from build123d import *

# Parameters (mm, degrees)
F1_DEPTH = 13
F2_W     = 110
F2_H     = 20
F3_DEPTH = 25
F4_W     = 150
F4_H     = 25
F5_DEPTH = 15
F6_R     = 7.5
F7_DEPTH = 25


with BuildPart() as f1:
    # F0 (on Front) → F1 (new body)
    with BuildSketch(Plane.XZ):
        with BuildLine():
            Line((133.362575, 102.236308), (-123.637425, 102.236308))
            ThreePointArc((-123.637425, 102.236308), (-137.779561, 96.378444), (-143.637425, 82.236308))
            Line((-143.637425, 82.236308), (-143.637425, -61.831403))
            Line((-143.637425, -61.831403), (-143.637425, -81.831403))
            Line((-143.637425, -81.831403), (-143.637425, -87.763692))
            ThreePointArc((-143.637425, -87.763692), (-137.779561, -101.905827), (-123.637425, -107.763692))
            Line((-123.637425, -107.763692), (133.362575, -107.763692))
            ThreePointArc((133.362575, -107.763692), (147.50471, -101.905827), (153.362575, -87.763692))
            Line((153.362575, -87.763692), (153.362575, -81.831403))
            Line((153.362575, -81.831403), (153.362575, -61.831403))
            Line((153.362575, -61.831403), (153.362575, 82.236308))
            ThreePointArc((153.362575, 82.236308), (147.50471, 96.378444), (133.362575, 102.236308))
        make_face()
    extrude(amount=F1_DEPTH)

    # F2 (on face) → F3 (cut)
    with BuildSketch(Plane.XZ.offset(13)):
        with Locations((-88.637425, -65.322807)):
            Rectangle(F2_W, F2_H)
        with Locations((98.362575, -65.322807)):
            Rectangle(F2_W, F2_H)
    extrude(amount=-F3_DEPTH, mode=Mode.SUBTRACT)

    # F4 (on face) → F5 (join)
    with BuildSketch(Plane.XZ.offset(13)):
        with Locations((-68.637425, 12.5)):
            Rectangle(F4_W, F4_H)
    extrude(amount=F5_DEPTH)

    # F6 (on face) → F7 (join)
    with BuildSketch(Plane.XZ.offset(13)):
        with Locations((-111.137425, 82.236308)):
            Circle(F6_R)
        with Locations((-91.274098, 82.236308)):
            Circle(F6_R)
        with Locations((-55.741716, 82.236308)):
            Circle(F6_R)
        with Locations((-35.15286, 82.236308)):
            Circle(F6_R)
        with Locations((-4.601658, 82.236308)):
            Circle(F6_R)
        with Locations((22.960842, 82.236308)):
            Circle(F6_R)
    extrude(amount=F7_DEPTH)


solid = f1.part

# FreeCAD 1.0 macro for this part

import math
import FreeCAD as App
import Part
import Sketcher

V = App.Vector


def add_polygon(sketch, points):
    """Adds a closed chain of lines whose ends are joined by coincident constraints."""
    first, n = sketch.GeometryCount, len(points)
    for a, b in zip(points, points[1:] + points[:1]):
        sketch.addGeometry(Part.LineSegment(App.Vector(*a, 0), App.Vector(*b, 0)), False)
    for i in range(n):
        sketch.addConstraint(Sketcher.Constraint("Coincident", first + i, 2, first + (i + 1) % n, 1))

doc = App.newDocument("Part")
params = doc.addObject("Spreadsheet::Sheet", "Params")
for row, (alias, value) in enumerate([
    ("sketch1_radius", "19.999999 mm"),
    ("sketch1_width", "257 mm"),
    ("sketch1_height", "170 mm"),
    ("pad1_length", "13 mm"),
    ("sketch2_width", "110 mm"),
    ("sketch2_height", "20 mm"),
    ("pocket1_length", "25 mm"),
    ("sketch3_width", "150 mm"),
    ("sketch3_height", "25 mm"),
    ("pad2_length", "15 mm"),
    ("sketch4_diameter", "15 mm"),
    ("pad3_length", "25 mm"),
], start=1):
    params.set(f"A{row}", alias)
    params.set(f"B{row}", "=" + value)
    params.setAlias(f"B{row}", alias)

body = doc.addObject("PartDesign::Body", "Body")

# Sketch on XZ plane
sketch1 = body.newObject("Sketcher::SketchObject", "Sketch")
sketch1.AttachmentSupport = (doc.getObject("XZ_Plane"), [""])
sketch1.MapMode = "FlatFace"
sketch1.addGeometry([
    Part.LineSegment(V(133, 102, 0), V(-124, 102, 0)),  # 0
    Part.ArcOfCircle(Part.Circle(V(-124, 82, 0), V(0, 0, 1), 20), math.radians(90), math.radians(180)),  # 1
    Part.LineSegment(V(-144, 82, 0), V(-144, -88, 0)),  # 2
    Part.ArcOfCircle(Part.Circle(V(-124, -88, 0), V(0, 0, 1), 20), math.radians(-180), math.radians(-90)),  # 3
    Part.LineSegment(V(-124, -108, 0), V(133, -108, 0)),  # 4
    Part.ArcOfCircle(Part.Circle(V(133, -88, 0), V(0, 0, 1), 20), math.radians(-90), math.radians(0)),  # 5
    Part.LineSegment(V(153, -88, 0), V(153, 82, 0)),  # 6
    Part.ArcOfCircle(Part.Circle(V(133, 82, 0), V(0, 0, 1), 20), math.radians(0), math.radians(90)),  # 7
], False)
sketch1.addConstraint([
    Sketcher.Constraint("Tangent", 0, 2, 1, 1),
    Sketcher.Constraint("Tangent", 1, 2, 2, 1),
    Sketcher.Constraint("Tangent", 2, 2, 3, 1),
    Sketcher.Constraint("Tangent", 3, 2, 4, 1),
    Sketcher.Constraint("Tangent", 4, 2, 5, 1),
    Sketcher.Constraint("Tangent", 5, 2, 6, 1),
    Sketcher.Constraint("Tangent", 6, 2, 7, 1),
    Sketcher.Constraint("Tangent", 7, 2, 0, 1),
    Sketcher.Constraint("Horizontal", 0),
    Sketcher.Constraint("Vertical", 2),
    Sketcher.Constraint("Horizontal", 4),
    Sketcher.Constraint("Vertical", 6),
    Sketcher.Constraint("Equal", 1, 3),
    Sketcher.Constraint("Equal", 3, 5),
    Sketcher.Constraint("Equal", 5, 7),
    Sketcher.Constraint("Radius", 1, 19.999999),
    Sketcher.Constraint("DistanceX", 0, 2, 0, 1, 257.0),
    Sketcher.Constraint("DistanceY", 2, 2, 2, 1, 170.0),
    Sketcher.Constraint("DistanceY", -1, 1, 1, 3, 82.236309),
    Sketcher.Constraint("DistanceX", 1, 3, -1, 1, 123.637426),
])
sketch1.setExpression("Constraints[15]", "Params.sketch1_radius")
sketch1.setExpression("Constraints[16]", "Params.sketch1_width")
sketch1.setExpression("Constraints[17]", "Params.sketch1_height")
pad1 = body.newObject("PartDesign::Pad", "Pad")
pad1.Profile = sketch1
pad1.setExpression("Length", "Params.pad1_length")

# Sketch on XZ plane
sketch2 = body.newObject("Sketcher::SketchObject", "Sketch001")
sketch2.AttachmentSupport = (doc.getObject("XZ_Plane"), [""])
sketch2.MapMode = "FlatFace"
sketch2.AttachmentOffset = App.Placement(V(0, 0, 13), App.Rotation())
add_polygon(sketch2, [(-144, -55), (-144, -75), (-34, -75), (-34, -55)])  # lines 0-3
add_polygon(sketch2, [(43, -55), (43, -75), (153, -75), (153, -55)])  # lines 4-7
sketch2.addConstraint([
    Sketcher.Constraint("Vertical", 0),
    Sketcher.Constraint("Horizontal", 1),
    Sketcher.Constraint("Vertical", 2),
    Sketcher.Constraint("Horizontal", 3),
    Sketcher.Constraint("Vertical", 4),
    Sketcher.Constraint("Horizontal", 5),
    Sketcher.Constraint("Vertical", 6),
    Sketcher.Constraint("Horizontal", 7),
    Sketcher.Constraint("Horizontal", 1, 2, 4, 2),
    Sketcher.Constraint("Horizontal", 3, 2, 6, 2),
    Sketcher.Constraint("Equal", 3, 5),
    Sketcher.Constraint("DistanceX", 1, 1, 1, 2, 110.0),
    Sketcher.Constraint("DistanceY", 0, 2, 0, 1, 20.0),
    Sketcher.Constraint("DistanceX", 1, 2, 4, 2, 77.0),
    Sketcher.Constraint("DistanceX", 0, 2, -1, 1, 143.637425),
    Sketcher.Constraint("DistanceY", 0, 2, -1, 1, 75.322807),
])
sketch2.setExpression("Constraints[19]", "Params.sketch2_width")
sketch2.setExpression("Constraints[20]", "Params.sketch2_height")
pocket1 = body.newObject("PartDesign::Pocket", "Pocket")
pocket1.Profile = sketch2
pocket1.setExpression("Length", "Params.pocket1_length")

# Sketch on XZ plane
sketch3 = body.newObject("Sketcher::SketchObject", "Sketch002")
sketch3.AttachmentSupport = (doc.getObject("XZ_Plane"), [""])
sketch3.MapMode = "FlatFace"
sketch3.AttachmentOffset = App.Placement(V(0, 0, 13), App.Rotation())
add_polygon(sketch3, [(-144, 25), (-144, 0), (6, 0), (6, 25)])  # lines 0-3
sketch3.addConstraint([
    Sketcher.Constraint("Vertical", 0),
    Sketcher.Constraint("Horizontal", 1),
    Sketcher.Constraint("Vertical", 2),
    Sketcher.Constraint("Horizontal", 3),
    Sketcher.Constraint("PointOnObject", 0, 2, -1),
    Sketcher.Constraint("DistanceX", 1, 1, 1, 2, 150.0),
    Sketcher.Constraint("DistanceY", 0, 2, 0, 1, 25.0),
    Sketcher.Constraint("DistanceX", 0, 2, -1, 1, 143.637425),
])
sketch3.setExpression("Constraints[9]", "Params.sketch3_width")
sketch3.setExpression("Constraints[10]", "Params.sketch3_height")
pad2 = body.newObject("PartDesign::Pad", "Pad001")
pad2.Profile = sketch3
pad2.setExpression("Length", "Params.pad2_length")

# Sketch on XZ plane
sketch4 = body.newObject("Sketcher::SketchObject", "Sketch003")
sketch4.AttachmentSupport = (doc.getObject("XZ_Plane"), [""])
sketch4.MapMode = "FlatFace"
sketch4.AttachmentOffset = App.Placement(V(0, 0, 13), App.Rotation())
sketch4.addGeometry([
    Part.Circle(V(-111, 82, 0), V(0, 0, 1), 8),  # 0
    Part.Circle(V(-91, 82, 0), V(0, 0, 1), 8),  # 1
    Part.Circle(V(-56, 82, 0), V(0, 0, 1), 8),  # 2
    Part.Circle(V(-35, 82, 0), V(0, 0, 1), 8),  # 3
    Part.Circle(V(-5, 82, 0), V(0, 0, 1), 8),  # 4
    Part.Circle(V(23, 82, 0), V(0, 0, 1), 8),  # 5
], False)
sketch4.addConstraint([
    Sketcher.Constraint("Equal", 0, 1),
    Sketcher.Constraint("Equal", 1, 2),
    Sketcher.Constraint("Equal", 2, 3),
    Sketcher.Constraint("Equal", 3, 4),
    Sketcher.Constraint("Equal", 4, 5),
    Sketcher.Constraint("Horizontal", 0, 3, 1, 3),
    Sketcher.Constraint("Horizontal", 1, 3, 2, 3),
    Sketcher.Constraint("Horizontal", 2, 3, 3, 3),
    Sketcher.Constraint("Horizontal", 3, 3, 4, 3),
    Sketcher.Constraint("Horizontal", 4, 3, 5, 3),
    Sketcher.Constraint("Diameter", 0, 15.0),
    Sketcher.Constraint("DistanceX", 3, 3, 4, 3, 30.551202),
    Sketcher.Constraint("DistanceX", 4, 3, 5, 3, 27.5625),
    Sketcher.Constraint("DistanceX", 3, 3, -1, 1, 35.15286),
    Sketcher.Constraint("DistanceX", 1, 3, 2, 3, 35.532382),
    Sketcher.Constraint("DistanceX", 0, 3, 2, 3, 55.395709),
    Sketcher.Constraint("DistanceX", 1, 3, 4, 3, 86.67244),
    Sketcher.Constraint("DistanceY", -1, 1, 0, 3, 82.236308),
])
sketch4.setExpression("Constraints[10]", "Params.sketch4_diameter")
pad3 = body.newObject("PartDesign::Pad", "Pad002")
pad3.Profile = sketch4
pad3.setExpression("Length", "Params.pad3_length")

doc.recompute()
